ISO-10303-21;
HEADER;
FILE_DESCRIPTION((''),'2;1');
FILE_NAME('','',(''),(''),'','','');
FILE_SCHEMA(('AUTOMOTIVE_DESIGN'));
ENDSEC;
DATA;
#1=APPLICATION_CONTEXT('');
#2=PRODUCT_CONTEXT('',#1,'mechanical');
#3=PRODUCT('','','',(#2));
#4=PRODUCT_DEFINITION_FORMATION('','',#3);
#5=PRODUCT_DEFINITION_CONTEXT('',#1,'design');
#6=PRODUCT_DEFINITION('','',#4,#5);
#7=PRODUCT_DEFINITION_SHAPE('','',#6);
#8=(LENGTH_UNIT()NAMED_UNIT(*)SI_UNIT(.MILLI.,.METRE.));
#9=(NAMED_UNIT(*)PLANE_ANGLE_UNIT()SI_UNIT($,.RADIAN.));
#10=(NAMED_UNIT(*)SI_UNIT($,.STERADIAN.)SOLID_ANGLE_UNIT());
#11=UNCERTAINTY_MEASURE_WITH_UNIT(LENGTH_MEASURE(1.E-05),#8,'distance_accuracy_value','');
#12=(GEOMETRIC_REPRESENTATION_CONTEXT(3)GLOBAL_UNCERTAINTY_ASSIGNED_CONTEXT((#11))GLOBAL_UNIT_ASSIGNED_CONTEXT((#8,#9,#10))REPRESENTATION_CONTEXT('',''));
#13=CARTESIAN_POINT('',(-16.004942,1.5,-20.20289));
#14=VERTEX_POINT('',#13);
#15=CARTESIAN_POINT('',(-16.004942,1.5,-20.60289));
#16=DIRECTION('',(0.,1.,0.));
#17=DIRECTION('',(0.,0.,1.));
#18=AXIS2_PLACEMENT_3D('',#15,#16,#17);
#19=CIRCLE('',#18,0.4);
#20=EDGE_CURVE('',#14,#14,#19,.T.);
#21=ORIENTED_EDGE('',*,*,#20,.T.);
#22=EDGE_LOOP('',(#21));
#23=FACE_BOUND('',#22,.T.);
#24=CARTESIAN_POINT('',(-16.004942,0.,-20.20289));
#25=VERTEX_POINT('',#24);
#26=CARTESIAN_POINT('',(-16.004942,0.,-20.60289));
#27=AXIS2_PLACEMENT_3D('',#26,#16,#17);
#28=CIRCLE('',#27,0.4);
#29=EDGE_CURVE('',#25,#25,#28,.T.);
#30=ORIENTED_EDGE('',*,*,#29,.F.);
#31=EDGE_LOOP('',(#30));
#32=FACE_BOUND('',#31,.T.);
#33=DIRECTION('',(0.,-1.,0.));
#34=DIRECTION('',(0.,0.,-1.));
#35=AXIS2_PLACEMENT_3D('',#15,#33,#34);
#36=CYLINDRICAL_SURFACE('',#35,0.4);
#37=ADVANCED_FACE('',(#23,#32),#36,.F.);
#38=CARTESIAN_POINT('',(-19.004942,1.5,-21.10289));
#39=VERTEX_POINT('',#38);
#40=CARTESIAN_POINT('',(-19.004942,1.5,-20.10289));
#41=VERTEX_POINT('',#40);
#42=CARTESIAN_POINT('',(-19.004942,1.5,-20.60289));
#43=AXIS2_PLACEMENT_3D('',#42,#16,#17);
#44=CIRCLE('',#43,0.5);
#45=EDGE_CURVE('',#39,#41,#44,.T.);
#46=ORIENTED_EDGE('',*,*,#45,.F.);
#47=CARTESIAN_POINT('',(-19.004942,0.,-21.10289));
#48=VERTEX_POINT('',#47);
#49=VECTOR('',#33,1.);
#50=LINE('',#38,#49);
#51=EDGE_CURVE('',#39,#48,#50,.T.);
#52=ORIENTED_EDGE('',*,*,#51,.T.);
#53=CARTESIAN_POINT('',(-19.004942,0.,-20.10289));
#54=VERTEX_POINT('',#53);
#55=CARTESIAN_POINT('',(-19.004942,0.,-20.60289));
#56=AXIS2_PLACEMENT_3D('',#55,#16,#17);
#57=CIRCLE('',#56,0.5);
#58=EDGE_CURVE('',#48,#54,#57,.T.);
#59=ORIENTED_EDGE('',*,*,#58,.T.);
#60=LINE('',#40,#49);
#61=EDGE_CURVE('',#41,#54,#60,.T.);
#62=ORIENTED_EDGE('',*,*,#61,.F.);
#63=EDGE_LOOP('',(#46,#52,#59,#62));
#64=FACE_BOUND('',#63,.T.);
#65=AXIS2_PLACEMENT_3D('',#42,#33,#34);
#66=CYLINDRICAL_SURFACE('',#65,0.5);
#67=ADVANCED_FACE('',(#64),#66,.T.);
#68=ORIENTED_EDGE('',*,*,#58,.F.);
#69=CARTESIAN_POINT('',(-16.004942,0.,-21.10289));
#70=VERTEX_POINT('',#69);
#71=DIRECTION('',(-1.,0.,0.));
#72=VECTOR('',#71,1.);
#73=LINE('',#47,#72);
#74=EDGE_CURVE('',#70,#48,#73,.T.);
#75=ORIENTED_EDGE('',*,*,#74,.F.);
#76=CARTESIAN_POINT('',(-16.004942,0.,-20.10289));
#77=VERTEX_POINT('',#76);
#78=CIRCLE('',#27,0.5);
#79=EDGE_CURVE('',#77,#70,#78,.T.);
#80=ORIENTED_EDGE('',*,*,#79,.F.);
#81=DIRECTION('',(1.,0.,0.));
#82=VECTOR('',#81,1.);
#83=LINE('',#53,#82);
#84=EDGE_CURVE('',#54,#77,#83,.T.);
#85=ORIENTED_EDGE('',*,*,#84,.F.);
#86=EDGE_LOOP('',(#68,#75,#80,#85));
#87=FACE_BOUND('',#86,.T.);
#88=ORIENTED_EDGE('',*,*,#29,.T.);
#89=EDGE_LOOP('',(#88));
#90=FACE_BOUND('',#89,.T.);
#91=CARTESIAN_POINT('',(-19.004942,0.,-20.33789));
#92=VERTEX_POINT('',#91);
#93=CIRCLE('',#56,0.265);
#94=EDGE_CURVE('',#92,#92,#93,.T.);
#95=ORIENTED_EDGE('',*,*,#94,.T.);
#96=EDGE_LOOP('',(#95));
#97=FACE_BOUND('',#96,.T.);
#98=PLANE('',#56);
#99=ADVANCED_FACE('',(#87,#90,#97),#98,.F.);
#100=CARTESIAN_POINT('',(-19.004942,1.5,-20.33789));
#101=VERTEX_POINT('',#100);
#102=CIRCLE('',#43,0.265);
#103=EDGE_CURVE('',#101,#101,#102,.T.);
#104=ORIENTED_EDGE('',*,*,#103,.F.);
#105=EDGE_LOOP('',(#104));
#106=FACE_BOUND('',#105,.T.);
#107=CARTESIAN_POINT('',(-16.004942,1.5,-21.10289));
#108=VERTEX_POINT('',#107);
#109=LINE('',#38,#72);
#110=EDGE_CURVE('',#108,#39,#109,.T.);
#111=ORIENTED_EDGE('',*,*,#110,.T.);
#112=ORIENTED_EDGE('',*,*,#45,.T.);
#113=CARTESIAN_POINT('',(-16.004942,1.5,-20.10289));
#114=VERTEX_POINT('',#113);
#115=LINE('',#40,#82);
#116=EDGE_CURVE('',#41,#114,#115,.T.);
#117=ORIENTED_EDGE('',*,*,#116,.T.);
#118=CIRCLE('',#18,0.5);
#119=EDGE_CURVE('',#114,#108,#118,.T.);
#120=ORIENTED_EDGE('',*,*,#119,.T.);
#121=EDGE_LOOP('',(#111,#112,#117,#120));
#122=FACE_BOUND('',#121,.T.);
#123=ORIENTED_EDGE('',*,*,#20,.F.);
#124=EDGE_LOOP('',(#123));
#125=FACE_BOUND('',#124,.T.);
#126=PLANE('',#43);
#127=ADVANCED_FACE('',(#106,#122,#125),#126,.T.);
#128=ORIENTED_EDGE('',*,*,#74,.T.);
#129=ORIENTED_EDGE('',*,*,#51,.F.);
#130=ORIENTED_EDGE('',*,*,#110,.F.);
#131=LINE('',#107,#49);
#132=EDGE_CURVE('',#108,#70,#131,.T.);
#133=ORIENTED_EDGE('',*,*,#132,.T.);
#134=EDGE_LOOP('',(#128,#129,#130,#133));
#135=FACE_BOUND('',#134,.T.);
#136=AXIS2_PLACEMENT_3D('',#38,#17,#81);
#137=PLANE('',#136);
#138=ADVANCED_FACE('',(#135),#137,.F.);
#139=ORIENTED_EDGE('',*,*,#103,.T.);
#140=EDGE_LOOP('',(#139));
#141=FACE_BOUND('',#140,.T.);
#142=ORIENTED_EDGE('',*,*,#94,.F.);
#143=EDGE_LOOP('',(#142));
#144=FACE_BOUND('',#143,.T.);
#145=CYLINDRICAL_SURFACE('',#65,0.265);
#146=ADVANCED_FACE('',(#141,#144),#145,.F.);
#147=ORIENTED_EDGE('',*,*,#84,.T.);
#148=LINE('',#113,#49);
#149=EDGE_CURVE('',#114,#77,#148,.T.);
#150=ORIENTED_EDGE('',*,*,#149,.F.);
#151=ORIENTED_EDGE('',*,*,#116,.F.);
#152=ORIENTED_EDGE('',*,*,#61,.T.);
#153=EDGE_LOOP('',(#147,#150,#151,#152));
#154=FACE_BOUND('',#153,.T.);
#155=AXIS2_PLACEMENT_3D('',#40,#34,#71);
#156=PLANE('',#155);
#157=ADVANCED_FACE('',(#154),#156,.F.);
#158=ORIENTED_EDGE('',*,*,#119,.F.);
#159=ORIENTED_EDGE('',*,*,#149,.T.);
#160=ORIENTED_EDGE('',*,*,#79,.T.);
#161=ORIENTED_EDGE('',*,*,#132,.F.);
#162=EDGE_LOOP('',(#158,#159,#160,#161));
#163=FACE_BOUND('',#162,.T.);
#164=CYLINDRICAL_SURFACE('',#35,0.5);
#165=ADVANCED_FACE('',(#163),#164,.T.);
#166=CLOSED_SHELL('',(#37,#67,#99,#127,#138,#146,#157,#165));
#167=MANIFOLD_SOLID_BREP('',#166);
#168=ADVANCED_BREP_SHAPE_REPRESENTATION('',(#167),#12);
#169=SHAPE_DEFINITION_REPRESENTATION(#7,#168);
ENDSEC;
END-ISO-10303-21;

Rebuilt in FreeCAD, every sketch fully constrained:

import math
import FreeCAD as App
import Part
import Sketcher

V = App.Vector
Q = App.Units.Quantity

doc = App.newDocument("Part")
body = doc.addObject("PartDesign::Body", "Body")

sketch1 = body.newObject("Sketcher::SketchObject", "Sketch")
sketch1.AttachmentSupport = (doc.getObject("XZ_Plane"), [""])
sketch1.MapMode = "FlatFace"
sketch1.addGeometry([
    Part.LineSegment(V(-16, -21.1, 0), V(-19, -21.1, 0)),
    Part.ArcOfCircle(Part.Circle(V(-19, -20.6, 0), V(0, 0, 1), 0.5), math.radians(90), math.radians(270)),
    Part.LineSegment(V(-19, -20.1, 0), V(-16, -20.1, 0)),
    Part.ArcOfCircle(Part.Circle(V(-16, -20.6, 0), V(0, 0, 1), 0.5), math.radians(-90), math.radians(90)),
    Part.Circle(V(-16, -20.6, 0), V(0, 0, 1), 0.4),
    Part.Circle(V(-19, -20.6, 0), V(0, 0, 1), 0.27),
], False)
sketch1.addConstraint([
    Sketcher.Constraint("Tangent", 0, 2, 1, 2),
    Sketcher.Constraint("Tangent", 1, 1, 2, 1),
    Sketcher.Constraint("Tangent", 2, 2, 3, 2),
    Sketcher.Constraint("Tangent", 3, 1, 0, 1),
    Sketcher.Constraint("Horizontal", 0),
    Sketcher.Constraint("Horizontal", 2),
    Sketcher.Constraint("Coincident", 4, 3, 3, 3),
    Sketcher.Constraint("Coincident", 5, 3, 1, 3),
    Sketcher.Constraint("Diameter", 4, Q("0.8 mm")),
    Sketcher.Constraint("Radius", 1, Q("0.5 mm")),
    Sketcher.Constraint("Diameter", 5, Q("0.53 mm")),
    Sketcher.Constraint("DistanceX", 0, 2, 0, 1, Q("3 mm")),
    Sketcher.Constraint("DistanceX", 1, 3, -1, 1, Q("19.004942 mm")),
    Sketcher.Constraint("DistanceY", 1, 3, -1, 1, Q("20.60289 mm")),
])
pad1 = body.newObject("PartDesign::Pad", "Pad")
pad1.Profile = sketch1
pad1.Length = 1.5
pad1.Reversed = True

doc.recompute()
